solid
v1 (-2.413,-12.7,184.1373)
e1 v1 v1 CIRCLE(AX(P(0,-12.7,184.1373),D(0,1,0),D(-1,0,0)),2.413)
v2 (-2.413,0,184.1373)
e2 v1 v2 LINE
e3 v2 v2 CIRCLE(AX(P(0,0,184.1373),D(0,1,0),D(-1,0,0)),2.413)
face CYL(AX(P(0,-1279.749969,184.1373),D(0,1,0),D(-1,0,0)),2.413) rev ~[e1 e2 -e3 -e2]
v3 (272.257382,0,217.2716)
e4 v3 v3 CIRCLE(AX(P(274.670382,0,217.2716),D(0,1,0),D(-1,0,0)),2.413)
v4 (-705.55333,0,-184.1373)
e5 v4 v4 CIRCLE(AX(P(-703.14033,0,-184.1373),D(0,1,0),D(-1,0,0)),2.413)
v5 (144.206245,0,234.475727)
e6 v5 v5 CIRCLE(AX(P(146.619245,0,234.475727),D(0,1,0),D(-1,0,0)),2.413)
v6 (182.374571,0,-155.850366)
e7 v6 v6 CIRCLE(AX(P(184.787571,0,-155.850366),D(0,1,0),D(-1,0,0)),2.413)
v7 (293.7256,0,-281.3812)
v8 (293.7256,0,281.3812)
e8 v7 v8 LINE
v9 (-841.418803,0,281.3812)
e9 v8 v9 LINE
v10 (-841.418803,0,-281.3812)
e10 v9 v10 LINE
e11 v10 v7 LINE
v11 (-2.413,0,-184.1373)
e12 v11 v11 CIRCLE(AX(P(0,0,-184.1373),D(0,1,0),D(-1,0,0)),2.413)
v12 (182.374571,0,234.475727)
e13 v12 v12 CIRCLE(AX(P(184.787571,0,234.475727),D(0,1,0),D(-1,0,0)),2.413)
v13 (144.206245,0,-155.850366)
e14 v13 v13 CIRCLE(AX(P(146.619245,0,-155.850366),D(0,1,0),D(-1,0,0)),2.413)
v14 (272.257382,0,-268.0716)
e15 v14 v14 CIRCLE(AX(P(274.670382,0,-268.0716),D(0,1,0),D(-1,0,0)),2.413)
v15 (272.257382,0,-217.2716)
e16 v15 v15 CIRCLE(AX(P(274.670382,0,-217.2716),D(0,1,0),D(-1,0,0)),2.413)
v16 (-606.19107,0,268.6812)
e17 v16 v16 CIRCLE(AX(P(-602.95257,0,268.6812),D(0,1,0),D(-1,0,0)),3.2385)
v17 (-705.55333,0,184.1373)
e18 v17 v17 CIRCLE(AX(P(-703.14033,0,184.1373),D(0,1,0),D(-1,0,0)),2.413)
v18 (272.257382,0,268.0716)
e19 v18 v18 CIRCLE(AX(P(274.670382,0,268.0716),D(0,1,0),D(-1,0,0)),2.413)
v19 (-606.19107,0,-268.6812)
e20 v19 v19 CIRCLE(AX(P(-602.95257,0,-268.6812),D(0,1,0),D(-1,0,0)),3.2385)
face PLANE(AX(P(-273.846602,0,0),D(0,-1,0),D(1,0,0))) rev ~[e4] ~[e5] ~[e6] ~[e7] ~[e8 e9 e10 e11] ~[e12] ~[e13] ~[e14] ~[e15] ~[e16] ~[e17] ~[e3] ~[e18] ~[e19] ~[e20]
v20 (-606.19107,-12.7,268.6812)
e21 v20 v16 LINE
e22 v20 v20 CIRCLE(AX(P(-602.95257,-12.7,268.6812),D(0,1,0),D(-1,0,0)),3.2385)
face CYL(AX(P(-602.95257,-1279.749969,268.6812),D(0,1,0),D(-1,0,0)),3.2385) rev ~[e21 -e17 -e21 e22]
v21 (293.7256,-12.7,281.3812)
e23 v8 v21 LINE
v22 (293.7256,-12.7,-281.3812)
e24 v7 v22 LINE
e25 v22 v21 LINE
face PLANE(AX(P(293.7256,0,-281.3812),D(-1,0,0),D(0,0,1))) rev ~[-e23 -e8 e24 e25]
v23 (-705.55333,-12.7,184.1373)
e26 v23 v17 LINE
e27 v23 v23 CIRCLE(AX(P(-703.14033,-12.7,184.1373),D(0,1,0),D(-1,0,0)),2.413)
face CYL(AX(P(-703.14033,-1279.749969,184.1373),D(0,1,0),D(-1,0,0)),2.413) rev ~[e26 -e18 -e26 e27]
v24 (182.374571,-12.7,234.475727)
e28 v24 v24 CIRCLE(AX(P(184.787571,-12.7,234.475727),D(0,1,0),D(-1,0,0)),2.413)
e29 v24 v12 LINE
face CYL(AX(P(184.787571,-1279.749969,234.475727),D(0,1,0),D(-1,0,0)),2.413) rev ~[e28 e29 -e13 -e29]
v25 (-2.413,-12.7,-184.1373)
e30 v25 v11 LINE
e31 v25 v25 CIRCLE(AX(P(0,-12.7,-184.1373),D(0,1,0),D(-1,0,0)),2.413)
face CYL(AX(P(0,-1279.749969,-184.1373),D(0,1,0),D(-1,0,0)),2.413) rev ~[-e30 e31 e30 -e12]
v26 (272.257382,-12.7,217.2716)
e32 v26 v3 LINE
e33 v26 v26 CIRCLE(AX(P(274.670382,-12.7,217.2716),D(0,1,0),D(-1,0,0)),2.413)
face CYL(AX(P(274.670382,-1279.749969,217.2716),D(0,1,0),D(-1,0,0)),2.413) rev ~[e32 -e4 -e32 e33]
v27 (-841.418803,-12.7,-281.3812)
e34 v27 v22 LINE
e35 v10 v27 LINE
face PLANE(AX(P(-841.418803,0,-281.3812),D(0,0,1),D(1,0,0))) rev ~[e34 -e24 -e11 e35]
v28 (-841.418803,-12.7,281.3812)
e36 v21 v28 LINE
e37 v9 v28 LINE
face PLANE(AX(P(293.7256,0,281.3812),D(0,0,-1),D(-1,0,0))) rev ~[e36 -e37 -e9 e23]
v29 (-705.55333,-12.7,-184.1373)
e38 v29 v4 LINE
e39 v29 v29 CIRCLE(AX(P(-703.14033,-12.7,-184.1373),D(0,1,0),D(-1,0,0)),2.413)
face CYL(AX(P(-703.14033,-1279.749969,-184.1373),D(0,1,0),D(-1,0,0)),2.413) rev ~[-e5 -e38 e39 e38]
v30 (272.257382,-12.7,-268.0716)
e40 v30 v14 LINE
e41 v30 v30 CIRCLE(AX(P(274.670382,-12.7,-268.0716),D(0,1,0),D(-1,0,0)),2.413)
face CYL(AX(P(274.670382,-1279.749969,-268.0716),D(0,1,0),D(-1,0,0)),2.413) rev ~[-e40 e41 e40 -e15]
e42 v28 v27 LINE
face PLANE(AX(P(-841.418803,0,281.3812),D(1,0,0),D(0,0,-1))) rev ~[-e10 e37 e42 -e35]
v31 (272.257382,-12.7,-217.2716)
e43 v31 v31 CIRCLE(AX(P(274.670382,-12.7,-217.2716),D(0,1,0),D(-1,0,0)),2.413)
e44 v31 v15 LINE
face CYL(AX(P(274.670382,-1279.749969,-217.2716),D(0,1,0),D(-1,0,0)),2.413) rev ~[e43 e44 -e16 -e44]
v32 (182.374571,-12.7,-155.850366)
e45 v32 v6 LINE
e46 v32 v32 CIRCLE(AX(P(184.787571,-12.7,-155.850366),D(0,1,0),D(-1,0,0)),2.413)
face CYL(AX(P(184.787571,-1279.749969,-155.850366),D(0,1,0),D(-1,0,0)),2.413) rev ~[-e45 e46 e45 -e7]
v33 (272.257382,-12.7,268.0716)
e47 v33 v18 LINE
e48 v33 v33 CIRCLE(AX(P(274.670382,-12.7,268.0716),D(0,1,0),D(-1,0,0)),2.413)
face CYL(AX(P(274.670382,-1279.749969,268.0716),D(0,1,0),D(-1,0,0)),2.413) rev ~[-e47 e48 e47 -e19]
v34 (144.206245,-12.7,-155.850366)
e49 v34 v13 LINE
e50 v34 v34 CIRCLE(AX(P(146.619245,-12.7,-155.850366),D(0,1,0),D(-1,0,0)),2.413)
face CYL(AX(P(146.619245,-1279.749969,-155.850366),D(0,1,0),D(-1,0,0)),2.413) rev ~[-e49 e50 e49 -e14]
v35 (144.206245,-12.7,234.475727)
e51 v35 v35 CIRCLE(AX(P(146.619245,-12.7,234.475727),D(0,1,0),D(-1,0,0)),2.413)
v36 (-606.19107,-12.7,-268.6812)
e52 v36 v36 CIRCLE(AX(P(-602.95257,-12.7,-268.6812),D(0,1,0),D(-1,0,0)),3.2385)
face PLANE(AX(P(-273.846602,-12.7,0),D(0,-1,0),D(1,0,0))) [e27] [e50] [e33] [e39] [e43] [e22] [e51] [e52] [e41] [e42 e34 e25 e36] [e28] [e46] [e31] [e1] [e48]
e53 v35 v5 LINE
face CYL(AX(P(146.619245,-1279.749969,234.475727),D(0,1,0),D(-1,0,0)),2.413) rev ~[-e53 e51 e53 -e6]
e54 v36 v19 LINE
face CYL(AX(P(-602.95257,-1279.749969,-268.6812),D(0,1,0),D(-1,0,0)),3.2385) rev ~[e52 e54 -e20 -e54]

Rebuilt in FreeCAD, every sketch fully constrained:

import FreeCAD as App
import Part
import Sketcher
Q = App.Units.Quantity

doc = App.newDocument("Part")
params = doc.addObject("Spreadsheet::Sheet", "Params")
for row, (alias, value) in enumerate([
    ("sketch1_height", "22.156 in"),
    ("pad1_length", "0.5 in"),
    ("sketch2_diameter", "0.19 in"),
    ("hole_diameter", "0.19 in"),
    ("sketch3_diameter", "0.255 in"),
    ("hole2_diameter", "0.255 in"),
    ("sketch4_diameter", "0.19 in"),
    ("hole3_diameter", "0.19 in"),
], start=1):
    params.set(f"A{row}", alias)
    params.set(f"B{row}", "=" + value)
    params.setAlias(f"B{row}", alias)

body = doc.addObject("PartDesign::Body", "Body")

sketch1 = body.newObject("Sketcher::SketchObject", "Sketch")
sketch1.AttachmentSupport = (doc.getObject("XZ_Plane"), [""])
sketch1.MapMode = "FlatFace"
sketch1.addGeometry([
    Part.LineSegment(App.Vector(294, -281, 0), App.Vector(294, 281, 0)),
    Part.LineSegment(App.Vector(294, 281, 0), App.Vector(-841, 281, 0)),
    Part.LineSegment(App.Vector(-841, 281, 0), App.Vector(-841, -281, 0)),
    Part.LineSegment(App.Vector(-841, -281, 0), App.Vector(294, -281, 0)),
], False)
sketch1.addConstraint([
    Sketcher.Constraint("Coincident", 0, 2, 1, 1),
    Sketcher.Constraint("Coincident", 1, 2, 2, 1),
    Sketcher.Constraint("Coincident", 2, 2, 3, 1),
    Sketcher.Constraint("Coincident", 3, 2, 0, 1),
    Sketcher.Constraint("Vertical", 0),
    Sketcher.Constraint("Horizontal", 1),
    Sketcher.Constraint("Vertical", 2),
    Sketcher.Constraint("Horizontal", 3),
    Sketcher.Constraint("DistanceY", 0, 1, 0, 2, Q("22.156 in")),
    Sketcher.Constraint("DistanceX", -1, 1, 0, 2, Q("11.564 in")),
    Sketcher.Constraint("DistanceY", -1, 1, 0, 2, Q("11.078 in")),
    Sketcher.Constraint("DistanceX", 1, 2, 1, 1, Q("1135.144403 mm")),
])
sketch1.setExpression("Constraints[8]", "Params.sketch1_height")
pad1 = body.newObject("PartDesign::Pad", "Pad")
pad1.Profile = sketch1
pad1.setExpression("Length", "Params.pad1_length")

sketch2 = body.newObject("Sketcher::SketchObject", "Sketch001")
sketch2.AttachmentSupport = (doc.getObject("XZ_Plane"), [""])
sketch2.MapMode = "FlatFace"
sketch2.AttachmentOffset = App.Placement(App.Vector(0, 0, 0.5 * 25.4), App.Rotation())
sketch2.addGeometry([
    Part.Circle(App.Vector(184.8, 234.5, 0), App.Vector(0, 0, 1), 2.4),
    Part.Circle(App.Vector(146.6, 234.5, 0), App.Vector(0, 0, 1), 2.4),
    Part.Circle(App.Vector(184.8, -155.9, 0), App.Vector(0, 0, 1), 2.4),
    Part.Circle(App.Vector(146.6, -155.9, 0), App.Vector(0, 0, 1), 2.4),
    Part.Circle(App.Vector(274.7, -268.1, 0), App.Vector(0, 0, 1), 2.4),
    Part.Circle(App.Vector(274.7, 268.1, 0), App.Vector(0, 0, 1), 2.4),
    Part.Circle(App.Vector(274.7, 217.3, 0), App.Vector(0, 0, 1), 2.4),
    Part.Circle(App.Vector(274.7, -217.3, 0), App.Vector(0, 0, 1), 2.4),
], False)
sketch2.addConstraint([
    Sketcher.Constraint("Equal", 0, 1),
    Sketcher.Constraint("Equal", 1, 2),
    Sketcher.Constraint("Equal", 2, 3),
    Sketcher.Constraint("Equal", 3, 4),
    Sketcher.Constraint("Equal", 4, 5),
    Sketcher.Constraint("Equal", 5, 6),
    Sketcher.Constraint("Equal", 6, 7),
    Sketcher.Constraint("Symmetric", 4, 3, 5, 3, -1),
    Sketcher.Constraint("Symmetric", 6, 3, 7, 3, -1),
    Sketcher.Constraint("Horizontal", 0, 3, 1, 3),
    Sketcher.Constraint("Horizontal", 2, 3, 3, 3),
    Sketcher.Constraint("Vertical", 0, 3, 2, 3),
    Sketcher.Constraint("Vertical", 1, 3, 3, 3),
    Sketcher.Constraint("Vertical", 5, 3, 6, 3),
    Sketcher.Constraint("Diameter", 0, Q("0.19 in")),
    Sketcher.Constraint("DistanceY", 6, 3, 5, 3, Q("2 in")),
    Sketcher.Constraint("DistanceY", 4, 3, -1, 1, Q("10.554 in")),
    Sketcher.Constraint("DistanceX", -1, 1, 0, 3, Q("184.787571 mm")),
    Sketcher.Constraint("DistanceX", -1, 1, 4, 3, Q("274.670382 mm")),
    Sketcher.Constraint("DistanceY", -1, 1, 0, 3, Q("234.475727 mm")),
    Sketcher.Constraint("DistanceX", -1, 1, 1, 3, Q("146.619245 mm")),
    Sketcher.Constraint("DistanceY", 2, 3, -1, 1, Q("155.850366 mm")),
])
sketch2.setExpression("Constraints[14]", "Params.sketch2_diameter")
doc.recompute()
hole = body.newObject("PartDesign::Hole", "Hole")
hole.Profile = sketch2
hole.ThreadType = "None"
hole.setExpression("Diameter", "Params.hole_diameter")
hole.DepthType = "ThroughAll"

sketch3 = body.newObject("Sketcher::SketchObject", "Sketch002")
sketch3.AttachmentSupport = (doc.getObject("XZ_Plane"), [""])
sketch3.MapMode = "FlatFace"
sketch3.AttachmentOffset = App.Placement(App.Vector(0, 0, 0.5 * 25.4), App.Rotation())
sketch3.addGeometry([
    Part.Circle(App.Vector(-603, -268.7, 0), App.Vector(0, 0, 1), 3.2),
    Part.Circle(App.Vector(-603, 268.7, 0), App.Vector(0, 0, 1), 3.2),
], False)
sketch3.addConstraint([
    Sketcher.Constraint("Equal", 0, 1),
    Sketcher.Constraint("Symmetric", 0, 3, 1, 3, -1),
    Sketcher.Constraint("Diameter", 0, Q("0.255 in")),
    Sketcher.Constraint("DistanceY", 0, 3, -1, 1, Q("10.578 in")),
    Sketcher.Constraint("DistanceX", 0, 3, -1, 1, Q("602.95257 mm")),
])
sketch3.setExpression("Constraints[2]", "Params.sketch3_diameter")
doc.recompute()
hole2 = body.newObject("PartDesign::Hole", "Hole001")
hole2.Profile = sketch3
hole2.ThreadType = "None"
hole2.setExpression("Diameter", "Params.hole2_diameter")
hole2.DepthType = "ThroughAll"

sketch4 = body.newObject("Sketcher::SketchObject", "Sketch003")
sketch4.AttachmentSupport = (doc.getObject("XZ_Plane"), [""])
sketch4.MapMode = "FlatFace"
sketch4.AttachmentOffset = App.Placement(App.Vector(0, 0, 0.5 * 25.4), App.Rotation())
sketch4.addGeometry([
    Part.Circle(App.Vector(-703.1, 184.1, 0), App.Vector(0, 0, 1), 2.4),
    Part.Circle(App.Vector(-703.1, -184.1, 0), App.Vector(0, 0, 1), 2.4),
    Part.Circle(App.Vector(0, 184.1, 0), App.Vector(0, 0, 1), 2.4),
    Part.Circle(App.Vector(0, -184.1, 0), App.Vector(0, 0, 1), 2.4),
], False)
sketch4.addConstraint([
    Sketcher.Constraint("Equal", 0, 1),
    Sketcher.Constraint("Equal", 1, 2),
    Sketcher.Constraint("Equal", 2, 3),
    Sketcher.Constraint("Symmetric", 2, 3, 3, 3, -1, 1),
    Sketcher.Constraint("Symmetric", 0, 3, 1, 3, -1),
    Sketcher.Constraint("PointOnObject", 2, 3, -2),
    Sketcher.Constraint("Horizontal", 0, 3, 2, 3),
    Sketcher.Constraint("Diameter", 0, Q("0.19 in")),
    Sketcher.Constraint("DistanceY", 1, 3, 0, 3, Q("14.499 in")),
    Sketcher.Constraint("DistanceX", 0, 3, -1, 1, Q("703.14033 mm")),
])
sketch4.setExpression("Constraints[7]", "Params.sketch4_diameter")
doc.recompute()
hole3 = body.newObject("PartDesign::Hole", "Hole002")
hole3.Profile = sketch4
hole3.ThreadType = "None"
hole3.setExpression("Diameter", "Params.hole3_diameter")
hole3.DepthType = "ThroughAll"

doc.recompute()
